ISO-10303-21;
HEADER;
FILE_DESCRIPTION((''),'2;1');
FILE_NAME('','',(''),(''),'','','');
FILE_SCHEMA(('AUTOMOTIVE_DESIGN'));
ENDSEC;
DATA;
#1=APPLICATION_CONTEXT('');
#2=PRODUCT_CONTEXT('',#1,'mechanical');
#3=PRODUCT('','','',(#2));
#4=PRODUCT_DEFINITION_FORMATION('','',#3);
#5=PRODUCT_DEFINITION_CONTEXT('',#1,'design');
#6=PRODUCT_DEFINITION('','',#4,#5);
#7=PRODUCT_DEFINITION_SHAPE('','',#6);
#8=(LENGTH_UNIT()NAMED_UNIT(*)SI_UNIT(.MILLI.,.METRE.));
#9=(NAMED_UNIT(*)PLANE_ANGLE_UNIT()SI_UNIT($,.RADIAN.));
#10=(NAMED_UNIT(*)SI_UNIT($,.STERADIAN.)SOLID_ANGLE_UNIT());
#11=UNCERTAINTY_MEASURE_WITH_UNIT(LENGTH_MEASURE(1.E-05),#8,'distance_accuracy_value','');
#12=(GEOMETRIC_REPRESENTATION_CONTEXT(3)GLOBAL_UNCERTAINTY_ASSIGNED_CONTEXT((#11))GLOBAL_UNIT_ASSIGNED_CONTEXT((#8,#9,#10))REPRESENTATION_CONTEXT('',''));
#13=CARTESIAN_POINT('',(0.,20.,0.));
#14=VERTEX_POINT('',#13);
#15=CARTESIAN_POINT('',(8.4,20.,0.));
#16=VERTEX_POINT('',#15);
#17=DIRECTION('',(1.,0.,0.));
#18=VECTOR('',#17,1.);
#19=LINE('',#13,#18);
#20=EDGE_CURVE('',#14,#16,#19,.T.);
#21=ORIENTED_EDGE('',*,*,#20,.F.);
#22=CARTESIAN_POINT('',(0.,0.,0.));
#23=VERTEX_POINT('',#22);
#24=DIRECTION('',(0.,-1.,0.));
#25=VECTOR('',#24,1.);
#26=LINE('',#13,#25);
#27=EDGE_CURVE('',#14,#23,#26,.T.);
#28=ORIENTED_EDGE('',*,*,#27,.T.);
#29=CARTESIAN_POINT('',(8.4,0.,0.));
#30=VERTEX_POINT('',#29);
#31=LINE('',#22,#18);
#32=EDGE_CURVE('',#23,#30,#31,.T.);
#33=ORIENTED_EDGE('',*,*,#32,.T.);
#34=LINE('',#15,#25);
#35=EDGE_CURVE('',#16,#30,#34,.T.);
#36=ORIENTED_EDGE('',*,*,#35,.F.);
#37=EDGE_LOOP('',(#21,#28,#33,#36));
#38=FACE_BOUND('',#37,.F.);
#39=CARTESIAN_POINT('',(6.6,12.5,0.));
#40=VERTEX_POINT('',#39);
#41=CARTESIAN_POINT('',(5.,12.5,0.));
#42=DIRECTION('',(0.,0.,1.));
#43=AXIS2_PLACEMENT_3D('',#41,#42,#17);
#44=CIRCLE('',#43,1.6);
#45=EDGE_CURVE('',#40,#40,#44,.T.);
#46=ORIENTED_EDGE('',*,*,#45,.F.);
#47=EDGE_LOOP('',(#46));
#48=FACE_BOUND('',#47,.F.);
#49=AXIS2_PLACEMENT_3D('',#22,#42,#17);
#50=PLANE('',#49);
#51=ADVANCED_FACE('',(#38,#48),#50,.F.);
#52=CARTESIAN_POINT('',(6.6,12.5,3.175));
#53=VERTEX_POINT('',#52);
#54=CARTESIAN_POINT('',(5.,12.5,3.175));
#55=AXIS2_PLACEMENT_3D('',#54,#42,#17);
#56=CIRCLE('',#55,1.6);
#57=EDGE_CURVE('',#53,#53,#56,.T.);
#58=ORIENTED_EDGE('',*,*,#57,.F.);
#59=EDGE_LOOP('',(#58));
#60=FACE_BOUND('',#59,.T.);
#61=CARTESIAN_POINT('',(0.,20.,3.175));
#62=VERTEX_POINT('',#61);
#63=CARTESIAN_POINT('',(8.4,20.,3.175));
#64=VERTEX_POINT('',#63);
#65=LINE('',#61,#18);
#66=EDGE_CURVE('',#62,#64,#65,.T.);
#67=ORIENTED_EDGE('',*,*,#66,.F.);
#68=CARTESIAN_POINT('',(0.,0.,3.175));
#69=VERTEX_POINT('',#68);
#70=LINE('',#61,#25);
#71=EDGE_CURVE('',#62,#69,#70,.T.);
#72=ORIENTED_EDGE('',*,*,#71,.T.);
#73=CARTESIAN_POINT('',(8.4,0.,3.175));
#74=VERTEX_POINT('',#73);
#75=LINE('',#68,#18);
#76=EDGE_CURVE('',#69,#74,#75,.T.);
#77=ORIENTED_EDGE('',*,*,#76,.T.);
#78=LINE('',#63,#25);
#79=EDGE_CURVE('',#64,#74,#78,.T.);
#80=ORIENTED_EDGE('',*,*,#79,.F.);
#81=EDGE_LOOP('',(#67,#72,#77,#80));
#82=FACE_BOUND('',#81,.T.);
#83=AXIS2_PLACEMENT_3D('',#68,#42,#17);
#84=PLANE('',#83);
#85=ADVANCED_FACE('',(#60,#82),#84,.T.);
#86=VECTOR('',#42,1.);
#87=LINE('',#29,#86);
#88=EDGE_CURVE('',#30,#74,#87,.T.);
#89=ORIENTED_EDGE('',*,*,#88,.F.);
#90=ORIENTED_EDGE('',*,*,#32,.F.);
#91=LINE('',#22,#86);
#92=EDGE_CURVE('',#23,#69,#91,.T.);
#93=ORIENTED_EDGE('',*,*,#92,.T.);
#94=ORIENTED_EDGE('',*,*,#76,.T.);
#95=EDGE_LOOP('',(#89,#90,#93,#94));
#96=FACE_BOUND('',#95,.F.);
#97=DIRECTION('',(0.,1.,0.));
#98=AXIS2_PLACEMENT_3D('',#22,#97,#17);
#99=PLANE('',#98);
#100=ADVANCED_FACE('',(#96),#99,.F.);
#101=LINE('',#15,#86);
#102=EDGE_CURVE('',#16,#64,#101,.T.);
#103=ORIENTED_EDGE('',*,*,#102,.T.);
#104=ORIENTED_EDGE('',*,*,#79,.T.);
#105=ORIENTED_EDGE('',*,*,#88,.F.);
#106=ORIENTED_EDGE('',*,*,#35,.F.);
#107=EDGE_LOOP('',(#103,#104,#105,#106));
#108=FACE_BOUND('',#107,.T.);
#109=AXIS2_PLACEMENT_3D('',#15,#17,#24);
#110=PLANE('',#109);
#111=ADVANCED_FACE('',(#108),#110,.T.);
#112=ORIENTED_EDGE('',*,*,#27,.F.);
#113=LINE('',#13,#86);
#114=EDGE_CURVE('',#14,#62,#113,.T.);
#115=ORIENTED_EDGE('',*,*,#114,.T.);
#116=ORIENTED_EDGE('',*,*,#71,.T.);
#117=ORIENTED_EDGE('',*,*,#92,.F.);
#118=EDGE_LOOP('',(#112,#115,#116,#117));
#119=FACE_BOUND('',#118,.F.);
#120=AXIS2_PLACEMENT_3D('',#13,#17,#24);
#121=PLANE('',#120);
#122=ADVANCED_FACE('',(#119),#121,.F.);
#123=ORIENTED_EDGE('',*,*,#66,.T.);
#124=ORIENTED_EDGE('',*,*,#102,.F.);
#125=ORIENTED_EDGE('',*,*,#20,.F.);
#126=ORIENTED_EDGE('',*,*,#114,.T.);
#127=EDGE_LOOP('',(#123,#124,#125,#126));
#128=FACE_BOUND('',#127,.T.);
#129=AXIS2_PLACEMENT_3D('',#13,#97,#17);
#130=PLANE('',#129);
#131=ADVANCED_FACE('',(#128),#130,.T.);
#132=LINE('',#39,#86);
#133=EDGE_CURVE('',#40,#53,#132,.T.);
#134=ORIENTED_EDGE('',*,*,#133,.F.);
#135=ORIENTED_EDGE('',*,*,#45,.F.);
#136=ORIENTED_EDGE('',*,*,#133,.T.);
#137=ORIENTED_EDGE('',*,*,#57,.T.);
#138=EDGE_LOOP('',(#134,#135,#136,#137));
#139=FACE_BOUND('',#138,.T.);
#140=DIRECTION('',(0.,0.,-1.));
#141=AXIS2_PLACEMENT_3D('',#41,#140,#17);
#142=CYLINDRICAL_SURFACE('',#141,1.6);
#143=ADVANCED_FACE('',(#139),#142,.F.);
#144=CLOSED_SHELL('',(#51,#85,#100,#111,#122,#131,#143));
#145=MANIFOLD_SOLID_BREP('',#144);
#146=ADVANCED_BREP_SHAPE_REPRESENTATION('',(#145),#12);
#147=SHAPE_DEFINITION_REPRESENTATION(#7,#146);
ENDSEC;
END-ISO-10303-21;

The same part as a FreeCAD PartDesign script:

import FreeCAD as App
import Part
import Sketcher
from FreeCAD import Vector

doc = App.newDocument("Part")
params = doc.addObject("Spreadsheet::Sheet", "Params")
for row, (alias, value) in enumerate([
    ("sketch1_diameter", "3.2 mm"),
    ("sketch1_height", "20 mm"),
    ("sketch1_width", "8.4 mm"),
    ("pad1_length", "3.175 mm"),
], start=1):
    params.set(f"A{row}", alias)
    params.set(f"B{row}", "=" + value)
    params.setAlias(f"B{row}", alias)

body = doc.addObject("PartDesign::Body", "Body")

sketch1 = body.newObject("Sketcher::SketchObject", "Sketch")
sketch1.AttachmentSupport = (doc.getObject("XY_Plane"), [""])
sketch1.MapMode = "FlatFace"
sketch1.addGeometry([
    Part.LineSegment(Vector(8.4, 20, 0), Vector(0, 20, 0)),
    Part.LineSegment(Vector(0, 20, 0), Vector(0, 0, 0)),
    Part.LineSegment(Vector(0, 0, 0), Vector(8.4, 0, 0)),
    Part.LineSegment(Vector(8.4, 0, 0), Vector(8.4, 20, 0)),
    Part.Circle(Vector(5, 12.5, 0), Vector(0, 0, 1), 1.6),
], False)
sketch1.addConstraint([
    Sketcher.Constraint("Coincident", 0, 2, 1, 1),
    Sketcher.Constraint("Coincident", 1, 2, 2, 1),
    Sketcher.Constraint("Coincident", 2, 2, 3, 1),
    Sketcher.Constraint("Coincident", 3, 2, 0, 1),
    Sketcher.Constraint("Horizontal", 0),
    Sketcher.Constraint("Vertical", 1),
    Sketcher.Constraint("Horizontal", 2),
    Sketcher.Constraint("Vertical", 3),
    Sketcher.Constraint("Coincident", 1, 2, -1, 1),
    Sketcher.Constraint("Diameter", 4, 3.2),
    Sketcher.Constraint("DistanceY", 1, 2, 1, 1, 20.0),
    Sketcher.Constraint("DistanceX", 0, 2, 0, 1, 8.4),
    Sketcher.Constraint("DistanceX", -1, 1, 4, 3, 5.0),
    Sketcher.Constraint("DistanceY", 4, 3, 0, 2, 7.5),
])
sketch1.setExpression("Constraints[9]", "Params.sketch1_diameter")
sketch1.setExpression("Constraints[10]", "Params.sketch1_height")
sketch1.setExpression("Constraints[11]", "Params.sketch1_width")
pad1 = body.newObject("PartDesign::Pad", "Pad")
pad1.Profile = sketch1
pad1.setExpression("Length", "Params.pad1_length")

doc.recompute()
